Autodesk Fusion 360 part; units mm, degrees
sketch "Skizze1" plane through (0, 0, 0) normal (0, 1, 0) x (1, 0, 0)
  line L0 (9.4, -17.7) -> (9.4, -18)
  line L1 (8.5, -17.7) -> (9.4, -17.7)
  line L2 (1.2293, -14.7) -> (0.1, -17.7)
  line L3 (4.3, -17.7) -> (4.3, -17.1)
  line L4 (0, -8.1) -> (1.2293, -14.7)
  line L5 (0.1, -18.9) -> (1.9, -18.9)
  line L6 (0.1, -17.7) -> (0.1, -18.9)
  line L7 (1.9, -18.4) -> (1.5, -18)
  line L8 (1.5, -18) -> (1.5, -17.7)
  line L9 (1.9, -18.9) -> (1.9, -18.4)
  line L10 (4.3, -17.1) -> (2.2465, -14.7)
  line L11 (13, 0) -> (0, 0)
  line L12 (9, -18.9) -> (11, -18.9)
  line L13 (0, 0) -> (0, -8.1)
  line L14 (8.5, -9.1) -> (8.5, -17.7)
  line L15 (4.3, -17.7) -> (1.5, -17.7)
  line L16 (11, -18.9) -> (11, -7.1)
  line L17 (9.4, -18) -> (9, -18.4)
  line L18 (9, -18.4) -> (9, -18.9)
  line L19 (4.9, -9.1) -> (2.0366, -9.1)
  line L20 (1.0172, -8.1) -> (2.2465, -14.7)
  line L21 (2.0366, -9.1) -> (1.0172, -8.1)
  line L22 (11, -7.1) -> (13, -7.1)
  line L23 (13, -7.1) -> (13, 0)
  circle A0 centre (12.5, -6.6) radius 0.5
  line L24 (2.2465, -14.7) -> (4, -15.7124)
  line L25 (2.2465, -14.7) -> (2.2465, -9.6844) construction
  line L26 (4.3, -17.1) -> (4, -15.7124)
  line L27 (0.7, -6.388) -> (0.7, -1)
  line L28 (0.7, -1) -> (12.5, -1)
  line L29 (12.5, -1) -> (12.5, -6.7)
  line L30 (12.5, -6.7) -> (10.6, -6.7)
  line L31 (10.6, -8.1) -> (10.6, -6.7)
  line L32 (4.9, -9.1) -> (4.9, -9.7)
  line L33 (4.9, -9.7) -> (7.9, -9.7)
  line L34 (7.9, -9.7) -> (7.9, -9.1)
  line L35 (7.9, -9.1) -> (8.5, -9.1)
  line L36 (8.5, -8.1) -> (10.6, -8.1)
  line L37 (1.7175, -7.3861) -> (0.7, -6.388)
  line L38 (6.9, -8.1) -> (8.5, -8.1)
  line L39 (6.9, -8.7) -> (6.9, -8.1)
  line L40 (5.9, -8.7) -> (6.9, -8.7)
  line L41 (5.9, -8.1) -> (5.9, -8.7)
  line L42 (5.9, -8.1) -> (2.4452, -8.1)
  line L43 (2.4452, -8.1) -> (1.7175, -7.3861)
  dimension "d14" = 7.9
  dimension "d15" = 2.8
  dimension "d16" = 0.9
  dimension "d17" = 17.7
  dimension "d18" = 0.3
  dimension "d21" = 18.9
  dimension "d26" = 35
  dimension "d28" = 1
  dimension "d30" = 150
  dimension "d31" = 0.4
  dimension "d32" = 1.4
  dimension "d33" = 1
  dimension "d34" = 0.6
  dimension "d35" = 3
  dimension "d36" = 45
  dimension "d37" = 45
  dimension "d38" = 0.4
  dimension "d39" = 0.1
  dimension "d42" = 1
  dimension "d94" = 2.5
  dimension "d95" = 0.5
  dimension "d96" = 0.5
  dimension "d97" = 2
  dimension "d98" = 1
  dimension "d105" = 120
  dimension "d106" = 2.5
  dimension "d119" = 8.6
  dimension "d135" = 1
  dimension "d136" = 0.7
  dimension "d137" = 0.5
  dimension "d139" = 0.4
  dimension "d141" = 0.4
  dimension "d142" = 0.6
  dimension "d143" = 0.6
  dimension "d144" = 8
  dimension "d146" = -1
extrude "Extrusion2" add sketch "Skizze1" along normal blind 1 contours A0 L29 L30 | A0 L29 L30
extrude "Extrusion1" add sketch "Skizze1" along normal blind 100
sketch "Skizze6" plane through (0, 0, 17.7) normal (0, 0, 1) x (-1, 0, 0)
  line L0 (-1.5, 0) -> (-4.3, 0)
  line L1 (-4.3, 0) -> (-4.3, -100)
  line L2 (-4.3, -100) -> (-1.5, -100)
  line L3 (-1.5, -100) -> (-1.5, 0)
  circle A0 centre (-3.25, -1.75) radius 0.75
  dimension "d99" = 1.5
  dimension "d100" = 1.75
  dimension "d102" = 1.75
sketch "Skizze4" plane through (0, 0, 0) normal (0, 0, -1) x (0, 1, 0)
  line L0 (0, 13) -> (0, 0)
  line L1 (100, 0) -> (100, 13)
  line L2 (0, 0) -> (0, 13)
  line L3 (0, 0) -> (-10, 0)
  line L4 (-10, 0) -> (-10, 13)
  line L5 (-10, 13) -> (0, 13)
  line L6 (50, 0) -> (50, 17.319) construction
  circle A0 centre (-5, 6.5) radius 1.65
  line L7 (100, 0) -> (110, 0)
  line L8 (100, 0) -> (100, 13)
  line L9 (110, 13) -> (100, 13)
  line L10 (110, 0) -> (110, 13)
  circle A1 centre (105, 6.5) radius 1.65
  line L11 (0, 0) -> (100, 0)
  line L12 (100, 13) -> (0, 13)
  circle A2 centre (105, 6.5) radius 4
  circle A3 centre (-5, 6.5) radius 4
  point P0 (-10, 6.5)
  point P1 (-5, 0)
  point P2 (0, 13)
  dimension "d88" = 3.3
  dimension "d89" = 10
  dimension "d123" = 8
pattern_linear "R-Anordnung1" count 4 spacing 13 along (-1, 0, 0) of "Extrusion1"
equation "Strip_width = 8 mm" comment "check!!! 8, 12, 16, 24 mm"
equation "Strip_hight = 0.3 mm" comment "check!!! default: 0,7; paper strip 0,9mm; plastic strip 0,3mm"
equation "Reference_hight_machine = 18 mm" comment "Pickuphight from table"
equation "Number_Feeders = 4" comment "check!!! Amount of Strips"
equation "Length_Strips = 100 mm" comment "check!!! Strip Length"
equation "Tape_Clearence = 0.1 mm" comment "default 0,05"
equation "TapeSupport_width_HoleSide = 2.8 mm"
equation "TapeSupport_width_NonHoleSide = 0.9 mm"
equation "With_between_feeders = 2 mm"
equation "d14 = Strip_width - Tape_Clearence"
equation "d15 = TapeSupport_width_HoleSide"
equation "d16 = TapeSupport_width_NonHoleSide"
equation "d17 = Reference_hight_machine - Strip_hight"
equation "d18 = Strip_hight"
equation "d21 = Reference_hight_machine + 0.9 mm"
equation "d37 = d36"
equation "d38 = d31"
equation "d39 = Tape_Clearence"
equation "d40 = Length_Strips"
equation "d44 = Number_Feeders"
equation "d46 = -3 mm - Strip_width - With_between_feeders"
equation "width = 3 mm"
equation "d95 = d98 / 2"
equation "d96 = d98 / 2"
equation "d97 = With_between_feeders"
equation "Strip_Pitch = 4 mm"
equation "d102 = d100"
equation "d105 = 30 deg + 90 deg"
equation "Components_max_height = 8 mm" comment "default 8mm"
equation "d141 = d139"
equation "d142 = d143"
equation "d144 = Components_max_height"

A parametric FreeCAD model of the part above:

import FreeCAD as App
import Part
import Sketcher
from FreeCAD import Vector
Q = App.Units.Quantity


def add_polygon(sketch, points):
    """Adds a closed chain of lines whose ends are joined by coincident constraints."""
    first, n = sketch.GeometryCount, len(points)
    for a, b in zip(points, points[1:] + points[:1]):
        sketch.addGeometry(Part.LineSegment(App.Vector(*a, 0), App.Vector(*b, 0)), False)
    for i in range(n):
        sketch.addConstraint(Sketcher.Constraint("Coincident", first + i, 2, first + (i + 1) % n, 1))

doc = App.newDocument("Part")
body = doc.addObject("PartDesign::Body", "Body")

sketch1 = doc.addObject("Sketcher::SketchObject", "Sketch")
body.addObject(sketch1)
sketch1.AttachmentSupport = (doc.XZ_Plane, [""])
sketch1.MapMode = "FlatFace"
sketch1.addGeometry(Part.Circle(Vector(12.5, 6.6, 0), Vector(0, 0, 1), 0.5), False)
sketch1.addConstraint([
    Sketcher.Constraint("Diameter", 0, 1.0),
    Sketcher.Constraint("DistanceX", -1, 1, 0, 3, 12.5),
    Sketcher.Constraint("DistanceY", -1, 1, 0, 3, 6.6),
])
pad1 = doc.addObject("PartDesign::Pad", "Pad")
body.addObject(pad1)
pad1.Profile = sketch1
pad1.Length = 1
pad1.Reversed = True

sketch2 = doc.addObject("Sketcher::SketchObject", "Sketch001")
body.addObject(sketch2)
sketch2.AttachmentSupport = (doc.XZ_Plane, [""])
sketch2.MapMode = "FlatFace"
add_polygon(sketch2, [(8.5, 17.7), (9.4, 17.7), (9.4, 18), (9, 18.4), (9, 18.9), (11, 18.9), (11, 7.1), (13, 7.1), (13, 0), (0, 0), (0, 8.1), (1.23, 14.7), (0.1, 17.7), (0.1, 18.9), (1.9, 18.9), (1.9, 18.4), (1.5, 18), (1.5, 17.7), (4.3, 17.7), (4.3, 17.1), (4, 15.71), (2.25, 14.7), (1.02, 8.1), (2.04, 9.1), (4.9, 9.1), (4.9, 9.7), (7.9, 9.7), (7.9, 9.1), (8.5, 9.1)])
sketch2.addConstraint([
    Sketcher.Constraint("Horizontal", 0),
    Sketcher.Constraint("Vertical", 1),
    Sketcher.Constraint("Vertical", 3),
    Sketcher.Constraint("Horizontal", 4),
    Sketcher.Constraint("Vertical", 5),
    Sketcher.Constraint("Horizontal", 6),
    Sketcher.Constraint("Vertical", 7),
    Sketcher.Constraint("Horizontal", 8),
    Sketcher.Constraint("Vertical", 9),
    Sketcher.Constraint("Vertical", 12),
    Sketcher.Constraint("Horizontal", 13),
    Sketcher.Constraint("Vertical", 14),
    Sketcher.Constraint("Vertical", 16),
    Sketcher.Constraint("Horizontal", 17),
    Sketcher.Constraint("Vertical", 18),
    Sketcher.Constraint("Horizontal", 23),
    Sketcher.Constraint("Vertical", 24),
    Sketcher.Constraint("Horizontal", 25),
    Sketcher.Constraint("Vertical", 26),
    Sketcher.Constraint("Horizontal", 27),
    Sketcher.Constraint("Vertical", 28),
    Sketcher.Constraint("Coincident", 8, 2, -1, 1),
    Sketcher.Constraint("Perpendicular", 2, 15),
    Sketcher.Constraint("Parallel", 10, 21),
    Sketcher.Constraint("Horizontal", 0, 2, 11, 2),
    Sketcher.Constraint("Horizontal", 4, 2, 12, 2),
    Sketcher.Constraint("Horizontal", 2, 2, 14, 2),
    Sketcher.Constraint("Horizontal", 1, 2, 15, 2),
    Sketcher.Constraint("Horizontal", 11, 2, 16, 2),
    Sketcher.Constraint("Horizontal", 10, 2, 20, 2),
    Sketcher.Constraint("Horizontal", 9, 2, 21, 2),
    Sketcher.Constraint("Horizontal", 23, 2, 26, 2),
    Sketcher.Constraint("Equal", 4, 6),
    Sketcher.Constraint("Equal", 27, 18),
    Sketcher.Constraint("Equal", 18, 24),
    Sketcher.Constraint("Equal", 2, 15),
    Sketcher.Constraint("DistanceX", 4, 1, 4, 2, 2.0),
    Sketcher.Constraint("DistanceX", 25, 1, 25, 2, 3.0),
    Sketcher.Constraint("Angle", 20, Q("-149.9996 deg")),
    Sketcher.Constraint("DistanceX", 0, 1, 0, 2, 0.9),
    Sketcher.Constraint("DistanceX", 17, 1, 17, 2, 2.8),
    Sketcher.Constraint("DistanceX", 27, 1, 27, 2, 0.6),
    Sketcher.Constraint("DistanceY", 1, 1, 1, 2, 0.3),
    Sketcher.Constraint("DistanceY", 3, 1, 3, 2, 0.5),
    Sketcher.Constraint("DistanceY", 28, 1, 28, 2, 8.6),
    Sketcher.Constraint("DistanceY", 5, 2, 9, 2, 1.0),
    Sketcher.Constraint("DistanceY", 10, 2, 0, 2, 3.0),
    Sketcher.Constraint("DistanceY", 21, 2, 22, 2, 1.0),
    Sketcher.Constraint("DistanceY", -1, 1, 0, 2, 17.7),
    Sketcher.Constraint("DistanceY", -1, 1, 3, 2, 18.9),
    Sketcher.Constraint("DistanceX", -1, 1, 11, 2, 0.1),
    Sketcher.Constraint("DistanceX", -1, 1, 25, 2, 7.9),
    Sketcher.Constraint("DistanceX", 11, 2, 15, 2, 1.4),
    Sketcher.Constraint("DistanceX", 19, 2, 18, 2, 0.3),
    Sketcher.Constraint("Angle", 19, Q("-102.1996 deg")),
    Sketcher.Constraint("Angle", 10, Q("79.4491 deg")),
    Sketcher.Constraint("Angle", 22, Q("44.4496 deg")),
])
pad2 = doc.addObject("PartDesign::Pad", "Pad001")
body.addObject(pad2)
pad2.Profile = sketch2
pad2.Length = 100
pad2.Reversed = True
doc.recompute()

linearpattern = doc.addObject("PartDesign::LinearPattern", "LinearPattern")
body.addObject(linearpattern)
linearpattern.Originals = [pad2]
linearpattern.Direction = (doc.X_Axis, [""])
linearpattern.Mode = "offset"
linearpattern.Offset = 13
linearpattern.Occurrences = 4
linearpattern.Reversed = True
body.Tip = linearpattern

doc.recompute()
